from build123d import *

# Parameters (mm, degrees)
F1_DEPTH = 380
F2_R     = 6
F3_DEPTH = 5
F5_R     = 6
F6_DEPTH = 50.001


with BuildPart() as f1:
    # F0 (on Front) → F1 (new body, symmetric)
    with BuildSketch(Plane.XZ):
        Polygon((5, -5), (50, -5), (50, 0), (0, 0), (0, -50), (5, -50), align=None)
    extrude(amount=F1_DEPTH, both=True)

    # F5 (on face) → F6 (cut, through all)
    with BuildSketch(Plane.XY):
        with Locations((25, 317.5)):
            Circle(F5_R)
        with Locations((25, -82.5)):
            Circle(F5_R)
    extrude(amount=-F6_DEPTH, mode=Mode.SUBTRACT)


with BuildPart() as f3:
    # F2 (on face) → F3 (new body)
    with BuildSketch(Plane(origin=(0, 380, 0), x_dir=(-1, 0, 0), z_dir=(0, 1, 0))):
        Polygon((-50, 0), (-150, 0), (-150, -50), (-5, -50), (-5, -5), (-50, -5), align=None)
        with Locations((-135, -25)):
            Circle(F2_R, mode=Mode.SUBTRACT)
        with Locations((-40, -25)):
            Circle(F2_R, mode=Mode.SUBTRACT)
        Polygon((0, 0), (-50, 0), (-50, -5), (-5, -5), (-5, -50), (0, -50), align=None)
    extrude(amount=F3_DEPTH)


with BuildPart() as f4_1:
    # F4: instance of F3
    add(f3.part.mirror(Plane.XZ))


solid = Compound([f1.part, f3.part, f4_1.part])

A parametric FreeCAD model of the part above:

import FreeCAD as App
import Part
import Sketcher
Q = App.Units.Quantity


def add_polygon(sketch, points):
    """Adds a closed chain of lines whose ends are joined by coincident constraints."""
    first, n = sketch.GeometryCount, len(points)
    for a, b in zip(points, points[1:] + points[:1]):
        sketch.addGeometry(Part.LineSegment(App.Vector(*a, 0), App.Vector(*b, 0)), False)
    for i in range(n):
        sketch.addConstraint(Sketcher.Constraint("Coincident", first + i, 2, first + (i + 1) % n, 1))

doc = App.newDocument("Part")
body = doc.addObject("PartDesign::Body", "Body")

# Sketch on XZ plane
sketch1 = body.newObject("Sketcher::SketchObject", "Sketch")
sketch1.AttachmentSupport = (doc.getObject("XZ_Plane"), [""])
sketch1.MapMode = "FlatFace"
add_polygon(sketch1, [(5, -5), (50, -5), (50, 0), (0, 0), (0, -50), (5, -50)])  # lines 0-5
sketch1.addConstraint([
    Sketcher.Constraint("Horizontal", 0),
    Sketcher.Constraint("Vertical", 1),
    Sketcher.Constraint("Horizontal", 2),
    Sketcher.Constraint("Vertical", 3),
    Sketcher.Constraint("Horizontal", 4),
    Sketcher.Constraint("Vertical", 5),
    Sketcher.Constraint("Coincident", 2, 2, -1, 1),
    Sketcher.Constraint("Equal", 4, 1),
    Sketcher.Constraint("Equal", 2, 3),
    Sketcher.Constraint("DistanceX", 0, 1, 0, 2, Q("45 mm")),
    Sketcher.Constraint("DistanceX", 2, 2, 2, 1, Q("50 mm")),
])
pad1 = body.newObject("PartDesign::Pad", "Pad")
pad1.Profile = sketch1
pad1.Length = 760
pad1.Midplane = True

# Sketch on XY plane
sketch2 = body.newObject("Sketcher::SketchObject", "Sketch001")
sketch2.AttachmentSupport = (doc.getObject("XY_Plane"), [""])
sketch2.MapMode = "FlatFace"
sketch2.addGeometry([
    Part.Circle(App.Vector(25, 317.5, 0), App.Vector(0, 0, 1), 6),
    Part.Circle(App.Vector(25, -82.5, 0), App.Vector(0, 0, 1), 6),
], False)
sketch2.addConstraint([
    Sketcher.Constraint("Equal", 0, 1),
    Sketcher.Constraint("Vertical", 0, 3, 1, 3),
    Sketcher.Constraint("Diameter", 0, Q("12 mm")),
    Sketcher.Constraint("DistanceX", -1, 1, 0, 3, Q("25 mm")),
    Sketcher.Constraint("DistanceY", 1, 3, 0, 3, Q("400 mm")),
    Sketcher.Constraint("DistanceY", -1, 1, 0, 3, Q("317.5 mm")),
])
pocket1 = body.newObject("PartDesign::Pocket", "Pocket")
pocket1.Profile = sketch2
pocket1.Type = "ThroughAll"
body2 = doc.addObject("PartDesign::Body", "Body001")

# Sketch on XZ plane
sketch3 = body2.newObject("Sketcher::SketchObject", "Sketch002")
sketch3.AttachmentSupport = (doc.getObject("XZ_Plane001"), [""])
sketch3.MapMode = "FlatFace"
sketch3.AttachmentOffset = App.Placement(App.Vector(0, 0, -380), App.Rotation())
add_polygon(sketch3, [(150, 0), (150, -50), (0, -50), (0, 0)])  # lines 0-3
sketch3.addGeometry(Part.Circle(App.Vector(135, -25, 0), App.Vector(0, 0, 1), 6), False)  # 4
sketch3.addGeometry(Part.Circle(App.Vector(40, -25, 0), App.Vector(0, 0, 1), 6), False)  # 5
sketch3.addConstraint([
    Sketcher.Constraint("Vertical", 0),
    Sketcher.Constraint("Horizontal", 1),
    Sketcher.Constraint("Vertical", 2),
    Sketcher.Constraint("Horizontal", 3),
    Sketcher.Constraint("Coincident", 2, 2, -1, 1),
    Sketcher.Constraint("Equal", 4, 5),
    Sketcher.Constraint("Horizontal", 4, 3, 5, 3),
    Sketcher.Constraint("Diameter", 4, Q("12 mm")),
    Sketcher.Constraint("DistanceX", 1, 2, 1, 1, Q("150 mm")),
    Sketcher.Constraint("DistanceY", 0, 2, 0, 1, Q("50 mm")),
    Sketcher.Constraint("DistanceX", -1, 1, 4, 3, Q("135 mm")),
    Sketcher.Constraint("DistanceY", 4, 3, -1, 1, Q("25 mm")),
    Sketcher.Constraint("DistanceX", -1, 1, 5, 3, Q("40 mm")),
])
pad2 = body2.newObject("PartDesign::Pad", "Pad001")
pad2.Profile = sketch3
pad2.Length = 5
pad2.Reversed = True
body3 = doc.addObject("PartDesign::Body", "Body002")
doc.recompute()

mirroring = doc.addObject("Part::Mirroring", "Mirroring")
mirroring.Source = body2
mirroring.Base = App.Vector(0, 0, 0)
mirroring.Normal = App.Vector(0, -1, 0)
body3.BaseFeature = mirroring
doc.recompute()
mirroring.Visibility = False

doc.recompute()
